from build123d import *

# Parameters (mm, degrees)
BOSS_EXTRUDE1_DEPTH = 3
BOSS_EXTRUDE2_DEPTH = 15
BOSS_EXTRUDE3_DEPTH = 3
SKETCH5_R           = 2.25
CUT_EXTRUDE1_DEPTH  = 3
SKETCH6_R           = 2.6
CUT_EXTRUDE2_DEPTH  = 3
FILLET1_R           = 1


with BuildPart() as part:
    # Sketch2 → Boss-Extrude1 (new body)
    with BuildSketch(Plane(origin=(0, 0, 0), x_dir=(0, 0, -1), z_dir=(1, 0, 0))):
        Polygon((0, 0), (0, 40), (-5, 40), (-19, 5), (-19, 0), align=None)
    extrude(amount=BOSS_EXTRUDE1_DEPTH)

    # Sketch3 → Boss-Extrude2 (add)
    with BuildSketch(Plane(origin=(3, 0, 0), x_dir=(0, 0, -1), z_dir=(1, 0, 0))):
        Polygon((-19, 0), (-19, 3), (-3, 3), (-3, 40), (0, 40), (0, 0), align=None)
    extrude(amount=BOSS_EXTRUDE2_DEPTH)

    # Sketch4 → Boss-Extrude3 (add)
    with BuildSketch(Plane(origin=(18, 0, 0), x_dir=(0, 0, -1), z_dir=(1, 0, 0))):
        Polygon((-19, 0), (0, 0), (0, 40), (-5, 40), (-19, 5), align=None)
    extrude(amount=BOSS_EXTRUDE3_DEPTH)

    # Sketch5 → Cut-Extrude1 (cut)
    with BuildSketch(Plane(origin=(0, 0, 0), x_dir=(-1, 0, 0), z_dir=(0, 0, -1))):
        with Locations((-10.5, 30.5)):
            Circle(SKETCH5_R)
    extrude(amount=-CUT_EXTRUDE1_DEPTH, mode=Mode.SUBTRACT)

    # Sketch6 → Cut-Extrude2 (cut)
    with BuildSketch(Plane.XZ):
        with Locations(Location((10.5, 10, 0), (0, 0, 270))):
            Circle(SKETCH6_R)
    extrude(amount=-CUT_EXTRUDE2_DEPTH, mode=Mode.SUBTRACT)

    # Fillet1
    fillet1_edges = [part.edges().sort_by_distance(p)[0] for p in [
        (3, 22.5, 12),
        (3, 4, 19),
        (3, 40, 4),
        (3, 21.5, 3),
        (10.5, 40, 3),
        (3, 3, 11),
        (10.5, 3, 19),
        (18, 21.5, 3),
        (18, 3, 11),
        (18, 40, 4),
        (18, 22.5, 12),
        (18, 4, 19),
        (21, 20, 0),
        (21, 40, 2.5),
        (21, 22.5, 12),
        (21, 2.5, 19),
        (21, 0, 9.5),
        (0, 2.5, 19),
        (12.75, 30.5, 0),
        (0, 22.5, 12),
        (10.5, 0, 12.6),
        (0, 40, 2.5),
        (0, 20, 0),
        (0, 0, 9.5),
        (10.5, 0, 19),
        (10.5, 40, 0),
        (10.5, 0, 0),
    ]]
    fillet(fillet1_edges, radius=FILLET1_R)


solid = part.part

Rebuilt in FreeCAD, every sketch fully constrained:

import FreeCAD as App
import Part
import Sketcher
Q = App.Units.Quantity


def edges_at(feature, points):
    """Names of the edges that pass closest to the given points."""
    edges = feature.Shape.Edges
    near = lambda p: min(range(len(edges)), key=lambda i: edges[i].distToShape(Part.Vertex(*p))[0])
    return sorted({f"Edge{near(p) + 1}" for p in points})


def add_polygon(sketch, points):
    """Adds a closed chain of lines whose ends are joined by coincident constraints."""
    first, n = sketch.GeometryCount, len(points)
    for a, b in zip(points, points[1:] + points[:1]):
        sketch.addGeometry(Part.LineSegment(App.Vector(*a, 0), App.Vector(*b, 0)), False)
    for i in range(n):
        sketch.addConstraint(Sketcher.Constraint("Coincident", first + i, 2, first + (i + 1) % n, 1))

doc = App.newDocument("Part")
params = doc.addObject("Spreadsheet::Sheet", "Params")
for row, (alias, value) in enumerate([
    ("sketch1_width", "40 mm"),
    ("sketch1_width2", "5 mm"),
    ("sketch1_height", "19 mm"),
    ("pad1_length", "3 mm"),
    ("sketch2_width", "3 mm"),
    ("sketch2_width2", "40 mm"),
    ("sketch2_height", "19 mm"),
    ("pad2_length", "15 mm"),
    ("sketch3_width", "40 mm"),
    ("sketch3_width2", "5 mm"),
    ("sketch3_height", "19 mm"),
    ("pad3_length", "3 mm"),
    ("sketch4_diameter", "4.5 mm"),
    ("pocket1_length", "3 mm"),
    ("sketch5_diameter", "5.2 mm"),
    ("pocket2_length", "3 mm"),
    ("fillet_radius", "1 mm"),
], start=1):
    params.set(f"A{row}", alias)
    params.set(f"B{row}", "=" + value)
    params.setAlias(f"B{row}", alias)

body = doc.addObject("PartDesign::Body", "Body")

sketch1 = body.newObject("Sketcher::SketchObject", "Sketch")
sketch1.AttachmentSupport = (doc.getObject("YZ_Plane"), [""])
sketch1.MapMode = "FlatFace"
add_polygon(sketch1, [(0, 0), (40, 0), (40, 5), (5, 19), (0, 19)])
sketch1.addConstraint([
    Sketcher.Constraint("Horizontal", 0),
    Sketcher.Constraint("Vertical", 1),
    Sketcher.Constraint("Horizontal", 3),
    Sketcher.Constraint("Vertical", 4),
    Sketcher.Constraint("Coincident", 4, 2, -1, 1),
    Sketcher.Constraint("Equal", 3, 1),
    Sketcher.Constraint("DistanceX", 0, 1, 0, 2, Q("40 mm")),
    Sketcher.Constraint("DistanceX", 3, 2, 3, 1, Q("5 mm")),
    Sketcher.Constraint("DistanceY", 4, 2, 4, 1, Q("19 mm")),
])
sketch1.setExpression("Constraints[11]", "Params.sketch1_width")
sketch1.setExpression("Constraints[12]", "Params.sketch1_width2")
sketch1.setExpression("Constraints[13]", "Params.sketch1_height")
pad1 = body.newObject("PartDesign::Pad", "Pad")
pad1.Profile = sketch1
pad1.setExpression("Length", "Params.pad1_length")

sketch2 = body.newObject("Sketcher::SketchObject", "Sketch001")
sketch2.AttachmentSupport = (doc.getObject("YZ_Plane"), [""])
sketch2.MapMode = "FlatFace"
sketch2.AttachmentOffset = App.Placement(App.Vector(0, 0, 3), App.Rotation())
add_polygon(sketch2, [(3, 19), (0, 19), (0, 0), (40, 0), (40, 3), (3, 3)])
sketch2.addConstraint([
    Sketcher.Constraint("Horizontal", 0),
    Sketcher.Constraint("Vertical", 1),
    Sketcher.Constraint("Horizontal", 2),
    Sketcher.Constraint("Vertical", 3),
    Sketcher.Constraint("Horizontal", 4),
    Sketcher.Constraint("Vertical", 5),
    Sketcher.Constraint("Coincident", 1, 2, -1, 1),
    Sketcher.Constraint("Equal", 0, 3),
    Sketcher.Constraint("DistanceX", 0, 2, 0, 1, Q("3 mm")),
    Sketcher.Constraint("DistanceX", 2, 1, 2, 2, Q("40 mm")),
    Sketcher.Constraint("DistanceY", 1, 2, 1, 1, Q("19 mm")),
])
sketch2.setExpression("Constraints[14]", "Params.sketch2_width")
sketch2.setExpression("Constraints[15]", "Params.sketch2_width2")
sketch2.setExpression("Constraints[16]", "Params.sketch2_height")
pad2 = body.newObject("PartDesign::Pad", "Pad001")
pad2.Profile = sketch2
pad2.setExpression("Length", "Params.pad2_length")

sketch3 = body.newObject("Sketcher::SketchObject", "Sketch002")
sketch3.AttachmentSupport = (doc.getObject("YZ_Plane"), [""])
sketch3.MapMode = "FlatFace"
sketch3.AttachmentOffset = App.Placement(App.Vector(0, 0, 18), App.Rotation())
add_polygon(sketch3, [(0, 19), (0, 0), (40, 0), (40, 5), (5, 19)])
sketch3.addConstraint([
    Sketcher.Constraint("Vertical", 0),
    Sketcher.Constraint("Horizontal", 1),
    Sketcher.Constraint("Vertical", 2),
    Sketcher.Constraint("Horizontal", 4),
    Sketcher.Constraint("Coincident", 0, 2, -1, 1),
    Sketcher.Constraint("Equal", 4, 2),
    Sketcher.Constraint("DistanceX", 1, 1, 1, 2, Q("40 mm")),
    Sketcher.Constraint("DistanceX", 4, 2, 4, 1, Q("5 mm")),
    Sketcher.Constraint("DistanceY", 0, 2, 0, 1, Q("19 mm")),
])
sketch3.setExpression("Constraints[11]", "Params.sketch3_width")
sketch3.setExpression("Constraints[12]", "Params.sketch3_width2")
sketch3.setExpression("Constraints[13]", "Params.sketch3_height")
pad3 = body.newObject("PartDesign::Pad", "Pad002")
pad3.Profile = sketch3
pad3.setExpression("Length", "Params.pad3_length")

sketch4 = body.newObject("Sketcher::SketchObject", "Sketch003")
sketch4.AttachmentSupport = (doc.getObject("XY_Plane"), [""])
sketch4.MapMode = "FlatFace"
sketch4.addGeometry(Part.Circle(App.Vector(10.5, 30.5, 0), App.Vector(0, 0, 1), 2.2), False)
sketch4.addConstraint([
    Sketcher.Constraint("Diameter", 0, Q("4.5 mm")),
    Sketcher.Constraint("DistanceX", -1, 1, 0, 3, Q("10.5 mm")),
    Sketcher.Constraint("DistanceY", -1, 1, 0, 3, Q("30.5 mm")),
])
sketch4.setExpression("Constraints[0]", "Params.sketch4_diameter")
pocket1 = body.newObject("PartDesign::Pocket", "Pocket")
pocket1.Profile = sketch4
pocket1.setExpression("Length", "Params.pocket1_length")
pocket1.Reversed = True

sketch5 = body.newObject("Sketcher::SketchObject", "Sketch004")
sketch5.AttachmentSupport = (doc.getObject("XZ_Plane"), [""])
sketch5.MapMode = "FlatFace"
sketch5.addGeometry(Part.Circle(App.Vector(10.5, 10, 0), App.Vector(0, 0, 1), 2.6), False)
sketch5.addConstraint([
    Sketcher.Constraint("Diameter", 0, Q("5.2 mm")),
    Sketcher.Constraint("DistanceY", -1, 1, 0, 3, Q("10 mm")),
    Sketcher.Constraint("DistanceX", -1, 1, 0, 3, Q("10.5 mm")),
])
sketch5.setExpression("Constraints[0]", "Params.sketch5_diameter")
pocket2 = body.newObject("PartDesign::Pocket", "Pocket001")
pocket2.Profile = sketch5
pocket2.setExpression("Length", "Params.pocket2_length")
doc.recompute()

fillet = body.newObject("PartDesign::Fillet", "Fillet")
fillet.Base = (pocket2, edges_at(pocket2, [
    (3, 22.5, 12),
    (3, 4, 19),
    (3, 40, 4),
    (3, 21.5, 3),
    (10.5, 40, 3),
    (3, 3, 11),
    (10.5, 3, 19),
    (18, 21.5, 3),
    (18, 3, 11),
    (18, 40, 4),
    (18, 22.5, 12),
    (18, 4, 19),
    (21, 20, 0),
    (21, 40, 2.5),
    (21, 22.5, 12),
    (21, 2.5, 19),
    (21, 0, 9.5),
    (0, 2.5, 19),
    (12.75, 30.5, 0),
    (0, 22.5, 12),
    (10.5, 0, 12.6),
    (0, 40, 2.5),
    (0, 20, 0),
    (0, 0, 9.5),
    (10.5, 0, 19),
    (10.5, 40, 0),
    (10.5, 0, 0),
]))
fillet.setExpression("Radius", "Params.fillet_radius")

doc.recompute()
